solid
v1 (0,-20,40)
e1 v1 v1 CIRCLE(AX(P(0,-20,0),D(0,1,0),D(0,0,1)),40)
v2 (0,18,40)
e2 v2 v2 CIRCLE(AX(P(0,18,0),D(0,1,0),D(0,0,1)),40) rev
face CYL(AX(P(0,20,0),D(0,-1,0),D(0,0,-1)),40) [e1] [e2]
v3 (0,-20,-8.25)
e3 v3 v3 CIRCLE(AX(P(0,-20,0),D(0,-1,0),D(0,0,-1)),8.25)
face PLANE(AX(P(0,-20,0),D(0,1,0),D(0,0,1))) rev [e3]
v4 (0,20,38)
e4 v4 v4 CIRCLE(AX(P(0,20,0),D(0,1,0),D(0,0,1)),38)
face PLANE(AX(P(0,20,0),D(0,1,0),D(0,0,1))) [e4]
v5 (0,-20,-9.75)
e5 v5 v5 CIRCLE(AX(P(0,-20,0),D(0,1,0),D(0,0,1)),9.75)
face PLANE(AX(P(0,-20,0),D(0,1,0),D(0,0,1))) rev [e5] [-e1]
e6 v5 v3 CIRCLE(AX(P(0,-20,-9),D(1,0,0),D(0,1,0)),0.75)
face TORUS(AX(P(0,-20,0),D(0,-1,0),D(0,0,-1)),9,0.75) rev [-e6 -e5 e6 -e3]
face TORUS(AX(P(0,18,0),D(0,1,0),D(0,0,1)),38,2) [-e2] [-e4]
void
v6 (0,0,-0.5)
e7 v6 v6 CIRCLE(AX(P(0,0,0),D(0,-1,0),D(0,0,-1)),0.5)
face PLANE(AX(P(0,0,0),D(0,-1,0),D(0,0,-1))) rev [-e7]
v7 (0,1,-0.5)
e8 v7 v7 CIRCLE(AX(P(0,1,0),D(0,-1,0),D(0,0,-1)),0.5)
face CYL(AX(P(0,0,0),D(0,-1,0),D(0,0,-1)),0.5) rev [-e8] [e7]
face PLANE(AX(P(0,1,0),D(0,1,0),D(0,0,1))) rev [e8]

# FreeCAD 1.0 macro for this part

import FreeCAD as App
import Part
import Sketcher
from FreeCAD import Vector


def edges_at(feature, points):
    """Names of the edges that pass closest to the given points."""
    edges = feature.Shape.Edges
    near = lambda p: min(range(len(edges)), key=lambda i: edges[i].distToShape(Part.Vertex(*p))[0])
    return sorted({f"Edge{near(p) + 1}" for p in points})

doc = App.newDocument("Part")
body = doc.addObject("PartDesign::Body", "Body")

sketch1 = doc.addObject("Sketcher::SketchObject", "Sketch")
body.addObject(sketch1)
sketch1.AttachmentSupport = (doc.XZ_Plane, [""])
sketch1.MapMode = "FlatFace"
sketch1.addGeometry(Part.Circle(Vector(0, 0, 0), Vector(0, 0, 1), 40), False)
sketch1.addConstraint(Sketcher.Constraint("Coincident", 0, 3, -1, 1))
sketch1.addConstraint(Sketcher.Constraint("Diameter", 0, 80.0))
pad1 = doc.addObject("PartDesign::Pad", "Pad")
body.addObject(pad1)
pad1.Profile = sketch1
pad1.Length = 40
pad1.Midplane = True
doc.recompute()

fillet = doc.addObject("PartDesign::Fillet", "Fillet")
body.addObject(fillet)
fillet.Base = (pad1, edges_at(pad1, [(-40, 20, 0)]))
fillet.Radius = 2

sketch2 = doc.addObject("Sketcher::SketchObject", "Sketch001")
body.addObject(sketch2)
sketch2.AttachmentSupport = (doc.XY_Plane, [""])
sketch2.MapMode = "FlatFace"
sketch2.addGeometry(Part.Circle(Vector(9, -20, 0), Vector(0, 0, 1), 0.75), False)
sketch2.addConstraint(Sketcher.Constraint("Diameter", 0, 1.5))
sketch2.addConstraint(Sketcher.Constraint("DistanceX", -1, 1, 0, 3, 9.0))
sketch2.addConstraint(Sketcher.Constraint("DistanceY", 0, 3, -1, 1, 20.0))

sketch3 = doc.addObject("Sketcher::SketchObject", "Sketch002")
body.addObject(sketch3)
sketch3.AttachmentSupport = (doc.XZ_Plane, [""])
sketch3.MapMode = "FlatFace"
sketch3.AttachmentOffset = App.Placement(Vector(0, 0, 20), App.Rotation())
sketch3.addGeometry(Part.Circle(Vector(0, 0, 0), Vector(0, 0, 1), 9), False)
sketch3.addConstraint(Sketcher.Constraint("Coincident", 0, 3, -1, 1))
sketch3.addConstraint(Sketcher.Constraint("Diameter", 0, 18.0))
doc.recompute()

subtractivepipe = doc.addObject("PartDesign::SubtractivePipe", "SubtractivePipe")
body.addObject(subtractivepipe)
subtractivepipe.Profile = sketch2
subtractivepipe.Spine = (sketch3, ["Edge1"])

sketch4 = doc.addObject("Sketcher::SketchObject", "Sketch003")
body.addObject(sketch4)
sketch4.AttachmentSupport = (doc.XY_Plane, [""])
sketch4.MapMode = "FlatFace"
sketch4.addGeometry(Part.LineSegment(Vector(0, 1, 0), Vector(0, 0, 0)), False)
sketch4.addGeometry(Part.LineSegment(Vector(0, 0, 0), Vector(0.5, 0, 0)), False)
sketch4.addGeometry(Part.LineSegment(Vector(0.5, 0, 0), Vector(0.5, 1, 0)), False)
sketch4.addGeometry(Part.LineSegment(Vector(0.5, 1, 0), Vector(0, 1, 0)), False)
sketch4.addConstraint(Sketcher.Constraint("Coincident", 0, 2, 1, 1))
sketch4.addConstraint(Sketcher.Constraint("Coincident", 1, 2, 2, 1))
sketch4.addConstraint(Sketcher.Constraint("Coincident", 2, 2, 3, 1))
sketch4.addConstraint(Sketcher.Constraint("Coincident", 3, 2, 0, 1))
sketch4.addConstraint(Sketcher.Constraint("Vertical", 0))
sketch4.addConstraint(Sketcher.Constraint("Horizontal", 1))
sketch4.addConstraint(Sketcher.Constraint("Vertical", 2))
sketch4.addConstraint(Sketcher.Constraint("Horizontal", 3))
sketch4.addConstraint(Sketcher.Constraint("Coincident", 0, 2, -1, 1))
sketch4.addConstraint(Sketcher.Constraint("DistanceY", 0, 2, 0, 1, 1.0))
sketch4.addConstraint(Sketcher.Constraint("DistanceX", 1, 1, 1, 2, 0.5))
groove = doc.addObject("PartDesign::Groove", "Groove")
body.addObject(groove)
groove.Profile = sketch4
groove.ReferenceAxis = (sketch4, ["V_Axis"])
groove.Angle = 360

doc.recompute()
